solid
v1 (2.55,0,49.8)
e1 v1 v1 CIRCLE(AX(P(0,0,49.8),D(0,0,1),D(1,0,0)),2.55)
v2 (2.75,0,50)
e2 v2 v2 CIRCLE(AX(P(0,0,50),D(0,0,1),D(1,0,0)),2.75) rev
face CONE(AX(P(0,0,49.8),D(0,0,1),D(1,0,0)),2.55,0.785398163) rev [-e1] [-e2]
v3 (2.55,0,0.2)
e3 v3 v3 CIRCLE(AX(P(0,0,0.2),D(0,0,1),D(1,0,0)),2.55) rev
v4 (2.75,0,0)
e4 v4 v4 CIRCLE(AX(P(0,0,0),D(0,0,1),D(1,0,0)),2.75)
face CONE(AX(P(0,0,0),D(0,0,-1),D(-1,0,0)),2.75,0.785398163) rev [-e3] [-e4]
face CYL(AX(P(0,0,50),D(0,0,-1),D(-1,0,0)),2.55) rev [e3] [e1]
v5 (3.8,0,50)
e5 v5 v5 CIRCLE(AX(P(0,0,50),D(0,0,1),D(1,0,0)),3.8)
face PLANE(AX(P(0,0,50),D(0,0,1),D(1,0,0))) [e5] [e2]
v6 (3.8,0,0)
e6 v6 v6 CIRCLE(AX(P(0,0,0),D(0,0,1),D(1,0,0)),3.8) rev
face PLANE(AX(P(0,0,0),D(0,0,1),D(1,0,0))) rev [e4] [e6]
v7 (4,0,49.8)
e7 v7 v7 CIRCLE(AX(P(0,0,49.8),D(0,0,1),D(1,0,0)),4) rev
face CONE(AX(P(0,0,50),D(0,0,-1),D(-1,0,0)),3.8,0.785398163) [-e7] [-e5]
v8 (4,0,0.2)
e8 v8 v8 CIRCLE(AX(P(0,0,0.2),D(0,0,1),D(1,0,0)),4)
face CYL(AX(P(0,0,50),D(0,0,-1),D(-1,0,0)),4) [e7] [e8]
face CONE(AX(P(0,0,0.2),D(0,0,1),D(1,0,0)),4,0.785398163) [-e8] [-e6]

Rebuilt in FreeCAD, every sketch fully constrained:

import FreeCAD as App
import Part
import Sketcher


def edges_at(feature, points):
    """Names of the edges that pass closest to the given points."""
    edges = feature.Shape.Edges
    near = lambda p: min(range(len(edges)), key=lambda i: edges[i].distToShape(Part.Vertex(*p))[0])
    return sorted({f"Edge{near(p) + 1}" for p in points})

doc = App.newDocument("Part")
params = doc.addObject("Spreadsheet::Sheet", "Params")
for row, (alias, value) in enumerate([
    ("sketch1_diameter", "8 mm"),
    ("sketch1_diameter2", "5.1 mm"),
    ("pad1_length", "50 mm"),
    ("chamfer_size", "0.2 mm"),
], start=1):
    params.set(f"A{row}", alias)
    params.set(f"B{row}", "=" + value)
    params.setAlias(f"B{row}", alias)

body = doc.addObject("PartDesign::Body", "Body")

sketch1 = body.newObject("Sketcher::SketchObject", "Sketch")
sketch1.AttachmentSupport = (doc.getObject("XY_Plane"), [""])
sketch1.MapMode = "FlatFace"
sketch1.addGeometry([
    Part.Circle(App.Vector(0, 0, 0), App.Vector(0, 0, 1), 4),
    Part.Circle(App.Vector(0, 0, 0), App.Vector(0, 0, 1), 2.5),
], False)
sketch1.addConstraint([
    Sketcher.Constraint("Coincident", 0, 3, -1, 1),
    Sketcher.Constraint("Coincident", 1, 3, -1, 1),
    Sketcher.Constraint("Diameter", 0, 8.0),
    Sketcher.Constraint("Diameter", 1, 5.1),
])
sketch1.setExpression("Constraints[2]", "Params.sketch1_diameter")
sketch1.setExpression("Constraints[3]", "Params.sketch1_diameter2")
pad1 = body.newObject("PartDesign::Pad", "Pad")
pad1.Profile = sketch1
pad1.setExpression("Length", "Params.pad1_length")
doc.recompute()

chamfer = body.newObject("PartDesign::Chamfer", "Chamfer")
chamfer.Base = (pad1, edges_at(pad1, [
    (-4, 0, 0),
    (-4, 0, 50),
    (-2.55, 0, 0),
    (-2.55, 0, 50),
]))
chamfer.setExpression("Size", "Params.chamfer_size")

doc.recompute()
